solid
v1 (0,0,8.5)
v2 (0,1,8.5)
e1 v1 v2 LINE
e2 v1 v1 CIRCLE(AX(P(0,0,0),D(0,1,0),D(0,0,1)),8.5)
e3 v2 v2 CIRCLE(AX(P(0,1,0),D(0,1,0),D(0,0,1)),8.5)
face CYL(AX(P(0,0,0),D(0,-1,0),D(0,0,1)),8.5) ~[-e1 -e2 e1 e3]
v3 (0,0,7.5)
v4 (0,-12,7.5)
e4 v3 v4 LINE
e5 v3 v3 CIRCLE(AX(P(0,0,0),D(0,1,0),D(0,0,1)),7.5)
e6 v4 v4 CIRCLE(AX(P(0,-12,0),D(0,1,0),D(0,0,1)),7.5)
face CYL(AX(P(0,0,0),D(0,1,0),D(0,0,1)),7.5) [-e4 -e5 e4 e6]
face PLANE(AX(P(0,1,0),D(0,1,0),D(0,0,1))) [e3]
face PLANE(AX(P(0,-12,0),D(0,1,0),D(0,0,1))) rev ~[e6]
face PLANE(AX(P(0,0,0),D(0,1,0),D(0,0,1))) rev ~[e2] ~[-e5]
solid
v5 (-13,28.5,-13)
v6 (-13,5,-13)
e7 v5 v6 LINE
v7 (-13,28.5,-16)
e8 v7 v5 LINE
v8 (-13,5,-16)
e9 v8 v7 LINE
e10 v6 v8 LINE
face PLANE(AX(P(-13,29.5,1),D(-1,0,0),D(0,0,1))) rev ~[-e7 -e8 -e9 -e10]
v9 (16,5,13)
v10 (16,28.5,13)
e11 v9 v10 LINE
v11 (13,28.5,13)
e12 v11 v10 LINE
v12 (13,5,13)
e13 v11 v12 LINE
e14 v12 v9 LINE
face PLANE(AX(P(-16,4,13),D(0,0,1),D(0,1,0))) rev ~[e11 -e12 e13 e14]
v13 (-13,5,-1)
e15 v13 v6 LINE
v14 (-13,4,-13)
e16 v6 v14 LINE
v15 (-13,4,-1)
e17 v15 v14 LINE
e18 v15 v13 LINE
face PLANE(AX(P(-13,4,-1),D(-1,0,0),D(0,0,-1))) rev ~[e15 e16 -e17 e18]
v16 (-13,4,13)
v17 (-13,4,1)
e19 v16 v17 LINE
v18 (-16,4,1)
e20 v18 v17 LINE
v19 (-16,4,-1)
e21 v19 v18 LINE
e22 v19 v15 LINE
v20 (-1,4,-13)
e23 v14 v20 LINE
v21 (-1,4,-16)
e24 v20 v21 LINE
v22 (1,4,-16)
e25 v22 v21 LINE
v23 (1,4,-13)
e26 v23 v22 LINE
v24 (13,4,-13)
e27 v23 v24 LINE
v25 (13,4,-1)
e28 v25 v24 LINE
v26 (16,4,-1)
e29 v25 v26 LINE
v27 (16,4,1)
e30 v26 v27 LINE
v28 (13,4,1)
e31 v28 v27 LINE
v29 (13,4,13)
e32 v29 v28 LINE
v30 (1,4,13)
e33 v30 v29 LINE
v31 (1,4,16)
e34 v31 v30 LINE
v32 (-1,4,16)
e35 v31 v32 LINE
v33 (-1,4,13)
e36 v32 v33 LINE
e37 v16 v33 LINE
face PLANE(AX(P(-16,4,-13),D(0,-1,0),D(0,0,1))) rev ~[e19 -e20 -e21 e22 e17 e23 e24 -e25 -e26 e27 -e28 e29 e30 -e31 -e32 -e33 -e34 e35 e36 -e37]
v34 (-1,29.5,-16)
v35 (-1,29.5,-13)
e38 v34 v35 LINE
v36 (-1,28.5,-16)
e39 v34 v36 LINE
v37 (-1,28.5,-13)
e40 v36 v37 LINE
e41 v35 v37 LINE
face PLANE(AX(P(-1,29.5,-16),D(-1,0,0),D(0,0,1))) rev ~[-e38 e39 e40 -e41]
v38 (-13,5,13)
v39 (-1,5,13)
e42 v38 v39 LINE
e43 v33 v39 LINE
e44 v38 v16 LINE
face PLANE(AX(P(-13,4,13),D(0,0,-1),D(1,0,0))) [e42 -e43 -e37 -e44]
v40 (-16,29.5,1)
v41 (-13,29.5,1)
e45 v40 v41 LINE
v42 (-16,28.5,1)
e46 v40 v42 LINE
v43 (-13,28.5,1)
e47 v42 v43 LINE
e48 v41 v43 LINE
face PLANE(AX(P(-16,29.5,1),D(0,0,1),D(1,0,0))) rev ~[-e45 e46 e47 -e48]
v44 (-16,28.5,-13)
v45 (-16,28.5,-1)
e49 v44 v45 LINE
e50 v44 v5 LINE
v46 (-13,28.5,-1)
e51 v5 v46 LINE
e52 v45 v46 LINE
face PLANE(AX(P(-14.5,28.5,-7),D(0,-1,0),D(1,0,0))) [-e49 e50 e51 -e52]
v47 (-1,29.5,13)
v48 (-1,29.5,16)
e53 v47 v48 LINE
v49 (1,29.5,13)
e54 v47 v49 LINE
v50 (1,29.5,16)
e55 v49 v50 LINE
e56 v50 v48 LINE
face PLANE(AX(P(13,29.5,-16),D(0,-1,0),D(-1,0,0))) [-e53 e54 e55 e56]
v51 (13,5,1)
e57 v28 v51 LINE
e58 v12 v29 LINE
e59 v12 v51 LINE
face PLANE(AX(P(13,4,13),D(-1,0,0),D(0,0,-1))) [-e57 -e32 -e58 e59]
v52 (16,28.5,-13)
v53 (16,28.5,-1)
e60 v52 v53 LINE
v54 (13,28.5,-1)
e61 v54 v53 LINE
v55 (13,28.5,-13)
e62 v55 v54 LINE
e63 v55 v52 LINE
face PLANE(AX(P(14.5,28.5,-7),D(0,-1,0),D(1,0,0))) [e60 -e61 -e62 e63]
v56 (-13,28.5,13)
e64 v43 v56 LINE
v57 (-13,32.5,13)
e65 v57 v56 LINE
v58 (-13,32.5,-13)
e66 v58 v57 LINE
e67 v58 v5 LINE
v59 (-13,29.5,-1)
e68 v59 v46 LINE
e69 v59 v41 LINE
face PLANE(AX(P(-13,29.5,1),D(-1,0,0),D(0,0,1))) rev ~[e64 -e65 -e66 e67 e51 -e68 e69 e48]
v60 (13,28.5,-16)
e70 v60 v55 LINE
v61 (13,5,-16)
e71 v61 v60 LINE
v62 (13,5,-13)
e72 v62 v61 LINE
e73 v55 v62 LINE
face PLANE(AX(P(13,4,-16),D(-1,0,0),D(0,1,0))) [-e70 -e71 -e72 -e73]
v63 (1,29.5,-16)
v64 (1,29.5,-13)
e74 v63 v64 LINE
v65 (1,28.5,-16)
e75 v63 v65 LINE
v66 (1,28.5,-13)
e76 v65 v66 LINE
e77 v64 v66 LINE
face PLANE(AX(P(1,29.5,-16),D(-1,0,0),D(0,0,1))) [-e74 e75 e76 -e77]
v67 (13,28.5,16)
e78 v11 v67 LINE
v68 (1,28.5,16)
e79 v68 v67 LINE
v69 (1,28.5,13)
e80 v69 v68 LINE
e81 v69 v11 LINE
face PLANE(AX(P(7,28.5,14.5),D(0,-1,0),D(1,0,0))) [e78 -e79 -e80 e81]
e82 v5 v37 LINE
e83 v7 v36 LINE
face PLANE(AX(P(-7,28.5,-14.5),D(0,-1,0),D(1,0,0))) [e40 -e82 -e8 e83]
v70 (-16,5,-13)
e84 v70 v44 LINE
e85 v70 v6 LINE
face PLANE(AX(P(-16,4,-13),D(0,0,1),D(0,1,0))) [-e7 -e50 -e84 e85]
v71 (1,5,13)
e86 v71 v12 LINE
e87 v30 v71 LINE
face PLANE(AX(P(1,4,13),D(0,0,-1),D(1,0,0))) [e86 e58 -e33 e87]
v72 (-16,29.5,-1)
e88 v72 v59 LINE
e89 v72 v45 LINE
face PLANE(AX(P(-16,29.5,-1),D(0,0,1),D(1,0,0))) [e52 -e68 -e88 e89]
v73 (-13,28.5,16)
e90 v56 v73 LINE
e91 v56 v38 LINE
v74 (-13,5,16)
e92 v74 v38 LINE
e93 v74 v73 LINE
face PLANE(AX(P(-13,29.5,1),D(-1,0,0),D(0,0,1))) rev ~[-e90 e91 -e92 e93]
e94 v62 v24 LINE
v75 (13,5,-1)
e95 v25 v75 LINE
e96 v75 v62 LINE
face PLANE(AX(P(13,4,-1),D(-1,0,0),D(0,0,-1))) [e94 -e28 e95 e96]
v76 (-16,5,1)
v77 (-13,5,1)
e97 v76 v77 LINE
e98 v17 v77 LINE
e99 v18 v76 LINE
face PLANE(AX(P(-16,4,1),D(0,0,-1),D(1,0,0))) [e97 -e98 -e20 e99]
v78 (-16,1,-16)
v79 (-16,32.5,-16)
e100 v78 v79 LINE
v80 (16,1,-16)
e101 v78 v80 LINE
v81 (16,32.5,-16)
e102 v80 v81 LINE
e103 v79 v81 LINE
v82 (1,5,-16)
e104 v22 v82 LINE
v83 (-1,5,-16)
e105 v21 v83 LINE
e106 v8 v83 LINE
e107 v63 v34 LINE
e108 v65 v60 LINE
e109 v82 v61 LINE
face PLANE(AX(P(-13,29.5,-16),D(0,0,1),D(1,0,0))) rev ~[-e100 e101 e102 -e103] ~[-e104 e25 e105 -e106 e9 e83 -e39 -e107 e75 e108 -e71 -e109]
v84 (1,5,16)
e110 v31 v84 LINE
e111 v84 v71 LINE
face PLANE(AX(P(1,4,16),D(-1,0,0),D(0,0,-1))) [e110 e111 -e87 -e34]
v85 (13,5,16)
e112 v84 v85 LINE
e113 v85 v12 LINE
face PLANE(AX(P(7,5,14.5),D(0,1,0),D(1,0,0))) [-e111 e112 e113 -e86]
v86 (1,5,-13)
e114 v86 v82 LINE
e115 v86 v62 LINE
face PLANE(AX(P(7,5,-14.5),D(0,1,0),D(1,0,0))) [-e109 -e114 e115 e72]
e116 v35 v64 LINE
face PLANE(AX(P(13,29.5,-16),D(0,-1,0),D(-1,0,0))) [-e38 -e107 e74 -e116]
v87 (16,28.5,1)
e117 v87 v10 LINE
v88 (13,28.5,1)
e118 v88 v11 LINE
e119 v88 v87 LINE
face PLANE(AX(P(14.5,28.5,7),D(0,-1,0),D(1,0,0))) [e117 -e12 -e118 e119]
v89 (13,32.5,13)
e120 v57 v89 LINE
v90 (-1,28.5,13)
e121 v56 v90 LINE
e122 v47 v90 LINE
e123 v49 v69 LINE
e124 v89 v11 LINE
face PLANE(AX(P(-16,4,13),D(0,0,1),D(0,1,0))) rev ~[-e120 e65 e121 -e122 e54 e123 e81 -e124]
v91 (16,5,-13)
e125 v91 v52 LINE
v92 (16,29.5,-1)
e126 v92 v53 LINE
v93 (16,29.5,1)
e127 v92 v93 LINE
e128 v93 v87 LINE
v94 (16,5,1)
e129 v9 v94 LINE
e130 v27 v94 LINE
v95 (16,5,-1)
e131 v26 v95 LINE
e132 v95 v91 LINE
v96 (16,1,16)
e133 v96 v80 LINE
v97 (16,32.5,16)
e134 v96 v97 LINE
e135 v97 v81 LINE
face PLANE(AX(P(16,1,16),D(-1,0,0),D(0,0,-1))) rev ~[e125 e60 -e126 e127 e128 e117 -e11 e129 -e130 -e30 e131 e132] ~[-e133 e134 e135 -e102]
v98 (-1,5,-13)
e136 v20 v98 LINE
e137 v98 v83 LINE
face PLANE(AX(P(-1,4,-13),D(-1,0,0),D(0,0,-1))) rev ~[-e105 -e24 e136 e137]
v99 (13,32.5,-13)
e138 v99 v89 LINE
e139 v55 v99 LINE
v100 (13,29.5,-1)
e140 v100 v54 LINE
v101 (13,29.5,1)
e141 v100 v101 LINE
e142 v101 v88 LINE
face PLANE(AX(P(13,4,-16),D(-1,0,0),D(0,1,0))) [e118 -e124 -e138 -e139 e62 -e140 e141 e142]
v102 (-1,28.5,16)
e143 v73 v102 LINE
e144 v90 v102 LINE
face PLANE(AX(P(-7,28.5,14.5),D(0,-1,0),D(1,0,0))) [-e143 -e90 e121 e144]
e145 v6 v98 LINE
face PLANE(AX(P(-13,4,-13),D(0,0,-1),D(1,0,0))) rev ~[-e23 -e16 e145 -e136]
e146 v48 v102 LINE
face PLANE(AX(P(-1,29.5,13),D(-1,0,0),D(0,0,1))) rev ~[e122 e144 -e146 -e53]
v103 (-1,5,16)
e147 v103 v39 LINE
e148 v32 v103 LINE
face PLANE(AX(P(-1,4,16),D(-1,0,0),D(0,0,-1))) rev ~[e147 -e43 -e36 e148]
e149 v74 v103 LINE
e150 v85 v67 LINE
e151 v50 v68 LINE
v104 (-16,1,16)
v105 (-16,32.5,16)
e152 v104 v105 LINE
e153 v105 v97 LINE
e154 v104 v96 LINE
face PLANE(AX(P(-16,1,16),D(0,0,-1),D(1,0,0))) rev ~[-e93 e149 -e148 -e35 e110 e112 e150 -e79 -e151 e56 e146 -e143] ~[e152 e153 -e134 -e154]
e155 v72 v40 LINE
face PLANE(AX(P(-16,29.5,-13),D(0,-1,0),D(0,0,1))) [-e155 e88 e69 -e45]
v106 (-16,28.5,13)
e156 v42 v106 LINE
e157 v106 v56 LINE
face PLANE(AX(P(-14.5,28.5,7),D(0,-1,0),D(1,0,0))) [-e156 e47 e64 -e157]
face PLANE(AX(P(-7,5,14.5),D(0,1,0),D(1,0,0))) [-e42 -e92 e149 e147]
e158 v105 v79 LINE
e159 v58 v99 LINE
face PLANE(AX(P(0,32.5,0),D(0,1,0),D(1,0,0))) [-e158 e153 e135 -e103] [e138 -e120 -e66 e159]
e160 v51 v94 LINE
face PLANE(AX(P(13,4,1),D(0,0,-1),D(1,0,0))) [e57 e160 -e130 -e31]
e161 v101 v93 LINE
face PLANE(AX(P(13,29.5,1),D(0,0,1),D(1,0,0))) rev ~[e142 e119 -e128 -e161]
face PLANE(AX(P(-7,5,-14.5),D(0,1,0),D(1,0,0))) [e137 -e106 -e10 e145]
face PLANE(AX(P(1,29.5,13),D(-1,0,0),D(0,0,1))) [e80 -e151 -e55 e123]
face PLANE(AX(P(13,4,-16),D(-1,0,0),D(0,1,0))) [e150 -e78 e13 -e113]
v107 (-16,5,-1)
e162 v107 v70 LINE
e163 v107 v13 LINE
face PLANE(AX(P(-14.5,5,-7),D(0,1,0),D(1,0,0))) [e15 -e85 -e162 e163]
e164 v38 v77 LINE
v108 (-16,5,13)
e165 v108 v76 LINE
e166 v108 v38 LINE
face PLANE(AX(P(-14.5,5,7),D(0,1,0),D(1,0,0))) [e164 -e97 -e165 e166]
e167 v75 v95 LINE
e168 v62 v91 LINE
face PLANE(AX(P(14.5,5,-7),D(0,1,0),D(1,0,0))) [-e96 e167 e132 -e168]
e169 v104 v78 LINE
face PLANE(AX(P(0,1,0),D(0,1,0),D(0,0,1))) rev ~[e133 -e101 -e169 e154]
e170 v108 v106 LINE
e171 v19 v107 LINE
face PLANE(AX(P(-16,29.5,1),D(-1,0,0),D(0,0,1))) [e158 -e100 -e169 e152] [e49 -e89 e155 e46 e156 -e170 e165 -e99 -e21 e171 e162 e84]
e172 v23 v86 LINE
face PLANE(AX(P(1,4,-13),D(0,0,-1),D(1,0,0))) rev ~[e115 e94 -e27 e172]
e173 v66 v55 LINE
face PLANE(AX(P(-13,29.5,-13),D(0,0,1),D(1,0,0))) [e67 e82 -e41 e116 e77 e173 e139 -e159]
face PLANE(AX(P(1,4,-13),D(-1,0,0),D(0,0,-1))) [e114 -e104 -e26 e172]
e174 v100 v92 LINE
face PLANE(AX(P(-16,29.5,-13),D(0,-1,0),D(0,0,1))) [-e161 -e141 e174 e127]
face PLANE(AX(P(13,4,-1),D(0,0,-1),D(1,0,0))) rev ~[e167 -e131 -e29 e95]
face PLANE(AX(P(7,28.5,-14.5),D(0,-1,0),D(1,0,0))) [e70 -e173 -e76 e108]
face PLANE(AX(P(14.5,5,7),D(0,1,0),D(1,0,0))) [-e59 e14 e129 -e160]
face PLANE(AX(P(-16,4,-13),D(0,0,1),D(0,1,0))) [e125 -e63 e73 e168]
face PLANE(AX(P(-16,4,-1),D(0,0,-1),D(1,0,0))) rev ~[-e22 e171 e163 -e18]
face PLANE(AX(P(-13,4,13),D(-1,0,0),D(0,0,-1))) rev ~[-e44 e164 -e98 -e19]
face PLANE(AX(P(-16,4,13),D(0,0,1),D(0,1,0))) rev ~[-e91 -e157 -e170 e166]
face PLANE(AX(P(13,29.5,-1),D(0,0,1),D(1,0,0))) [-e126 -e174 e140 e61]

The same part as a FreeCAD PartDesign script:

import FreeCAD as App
import Part
import Sketcher
Q = App.Units.Quantity

doc = App.newDocument("Part")
params = doc.addObject("Spreadsheet::Sheet", "Params")
for row, (alias, value) in enumerate([
    ("sketch1_diameter", "15 mm"),
    ("pad1_length", "12 mm"),
    ("sketch2_diameter", "17 mm"),
    ("pad2_length", "1 mm"),
    ("sketch3_width", "32 mm"),
    ("pad3_length", "31.5 mm"),
    ("sketch4_width", "26 mm"),
    ("sketch5_height", "26 mm"),
    ("sketch5_width", "25.5 mm"),
    ("sketch6_width", "26 mm"),
    ("sketch6_height", "25.5 mm"),
    ("sketch7_width", "12 mm"),
    ("sketch7_width2", "3 mm"),
    ("pad4_length", "1 mm"),
    ("sketch8_width", "3 mm"),
    ("sketch8_height", "12 mm"),
    ("pad5_length", "1 mm"),
    ("sketch9_width", "12 mm"),
    ("sketch9_height", "3 mm"),
    ("pad6_length", "1 mm"),
], start=1):
    params.set(f"A{row}", alias)
    params.set(f"B{row}", "=" + value)
    params.setAlias(f"B{row}", alias)

body = doc.addObject("PartDesign::Body", "Body")

sketch1 = doc.addObject("Sketcher::SketchObject", "Sketch")
body.addObject(sketch1)
sketch1.AttachmentSupport = (doc.XZ_Plane, [""])
sketch1.MapMode = "FlatFace"
sketch1.addGeometry(Part.Circle(App.Vector(0, 0, 0), App.Vector(0, 0, 1), 8), False)
sketch1.addConstraint(Sketcher.Constraint("Coincident", 0, 3, -1, 1))
sketch1.addConstraint(Sketcher.Constraint("Diameter", 0, Q("15 mm")))
sketch1.setExpression("Constraints[1]", "Params.sketch1_diameter")
pad1 = doc.addObject("PartDesign::Pad", "Pad")
body.addObject(pad1)
pad1.Profile = sketch1
pad1.setExpression("Length", "Params.pad1_length")

sketch2 = doc.addObject("Sketcher::SketchObject", "Sketch001")
body.addObject(sketch2)
sketch2.AttachmentSupport = (doc.XZ_Plane, [""])
sketch2.MapMode = "FlatFace"
sketch2.addGeometry(Part.Circle(App.Vector(0, 0, 0), App.Vector(0, 0, 1), 8), False)
sketch2.addConstraint(Sketcher.Constraint("Coincident", 0, 3, -1, 1))
sketch2.addConstraint(Sketcher.Constraint("Diameter", 0, Q("17 mm")))
sketch2.setExpression("Constraints[1]", "Params.sketch2_diameter")
pad2 = doc.addObject("PartDesign::Pad", "Pad001")
body.addObject(pad2)
pad2.Profile = sketch2
pad2.setExpression("Length", "Params.pad2_length")
pad2.Reversed = True
body2 = doc.addObject("PartDesign::Body", "Body001")

sketch3 = doc.addObject("Sketcher::SketchObject", "Sketch002")
body2.addObject(sketch3)
sketch3.AttachmentSupport = (doc.getObject("XZ_Plane001"), [""])
sketch3.MapMode = "FlatFace"
sketch3.AttachmentOffset = App.Placement(App.Vector(0, 0, -1), App.Rotation())
sketch3.addGeometry(Part.LineSegment(App.Vector(-16, -16, 0), App.Vector(-16, 16, 0)), False)
sketch3.addGeometry(Part.LineSegment(App.Vector(-16, 16, 0), App.Vector(16, 16, 0)), False)
sketch3.addGeometry(Part.LineSegment(App.Vector(16, 16, 0), App.Vector(16, -16, 0)), False)
sketch3.addGeometry(Part.LineSegment(App.Vector(16, -16, 0), App.Vector(-16, -16, 0)), False)
sketch3.addConstraint(Sketcher.Constraint("Coincident", 0, 2, 1, 1))
sketch3.addConstraint(Sketcher.Constraint("Coincident", 1, 2, 2, 1))
sketch3.addConstraint(Sketcher.Constraint("Coincident", 2, 2, 3, 1))
sketch3.addConstraint(Sketcher.Constraint("Coincident", 3, 2, 0, 1))
sketch3.addConstraint(Sketcher.Constraint("Vertical", 0))
sketch3.addConstraint(Sketcher.Constraint("Horizontal", 1))
sketch3.addConstraint(Sketcher.Constraint("Vertical", 2))
sketch3.addConstraint(Sketcher.Constraint("Horizontal", 3))
sketch3.addConstraint(Sketcher.Constraint("Symmetric", 0, 2, 2, 2, -1, 1))
sketch3.addConstraint(Sketcher.Constraint("Equal", 3, 0))
sketch3.addConstraint(Sketcher.Constraint("DistanceX", 1, 1, 1, 2, Q("32 mm")))
sketch3.setExpression("Constraints[10]", "Params.sketch3_width")
pad3 = doc.addObject("PartDesign::Pad", "Pad002")
body2.addObject(pad3)
pad3.Profile = sketch3
pad3.setExpression("Length", "Params.pad3_length")
pad3.Reversed = True

sketch4 = doc.addObject("Sketcher::SketchObject", "Sketch003")
body2.addObject(sketch4)
sketch4.AttachmentSupport = (doc.getObject("XZ_Plane001"), [""])
sketch4.MapMode = "FlatFace"
sketch4.AttachmentOffset = App.Placement(App.Vector(0, 0, -4), App.Rotation())
sketch4.addGeometry(Part.LineSegment(App.Vector(13, -13, 0), App.Vector(13, 13, 0)), False)
sketch4.addGeometry(Part.LineSegment(App.Vector(13, 13, 0), App.Vector(-13, 13, 0)), False)
sketch4.addGeometry(Part.LineSegment(App.Vector(-13, 13, 0), App.Vector(-13, -13, 0)), False)
sketch4.addGeometry(Part.LineSegment(App.Vector(-13, -13, 0), App.Vector(13, -13, 0)), False)
sketch4.addConstraint(Sketcher.Constraint("Coincident", 0, 2, 1, 1))
sketch4.addConstraint(Sketcher.Constraint("Coincident", 1, 2, 2, 1))
sketch4.addConstraint(Sketcher.Constraint("Coincident", 2, 2, 3, 1))
sketch4.addConstraint(Sketcher.Constraint("Coincident", 3, 2, 0, 1))
sketch4.addConstraint(Sketcher.Constraint("Vertical", 0))
sketch4.addConstraint(Sketcher.Constraint("Horizontal", 1))
sketch4.addConstraint(Sketcher.Constraint("Vertical", 2))
sketch4.addConstraint(Sketcher.Constraint("Horizontal", 3))
sketch4.addConstraint(Sketcher.Constraint("Symmetric", 0, 2, 2, 2, -1, 1))
sketch4.addConstraint(Sketcher.Constraint("Equal", 3, 0))
sketch4.addConstraint(Sketcher.Constraint("DistanceX", 1, 2, 1, 1, Q("26 mm")))
sketch4.setExpression("Constraints[10]", "Params.sketch4_width")
pocket1 = doc.addObject("PartDesign::Pocket", "Pocket")
body2.addObject(pocket1)
pocket1.Profile = sketch4
pocket1.Type = "ThroughAll"

sketch5 = doc.addObject("Sketcher::SketchObject", "Sketch004")
body2.addObject(sketch5)
sketch5.AttachmentSupport = (doc.getObject("YZ_Plane001"), [""])
sketch5.MapMode = "FlatFace"
sketch5.AttachmentOffset = App.Placement(App.Vector(0, 0, -16), App.Rotation())
sketch5.addGeometry(Part.LineSegment(App.Vector(30, -13, 0), App.Vector(4, -13, 0)), False)
sketch5.addGeometry(Part.LineSegment(App.Vector(4, -13, 0), App.Vector(4, 13, 0)), False)
sketch5.addGeometry(Part.LineSegment(App.Vector(4, 13, 0), App.Vector(30, 13, 0)), False)
sketch5.addGeometry(Part.LineSegment(App.Vector(30, 13, 0), App.Vector(30, -13, 0)), False)
sketch5.addConstraint(Sketcher.Constraint("Coincident", 0, 2, 1, 1))
sketch5.addConstraint(Sketcher.Constraint("Coincident", 1, 2, 2, 1))
sketch5.addConstraint(Sketcher.Constraint("Coincident", 2, 2, 3, 1))
sketch5.addConstraint(Sketcher.Constraint("Coincident", 3, 2, 0, 1))
sketch5.addConstraint(Sketcher.Constraint("Horizontal", 0))
sketch5.addConstraint(Sketcher.Constraint("Vertical", 1))
sketch5.addConstraint(Sketcher.Constraint("Horizontal", 2))
sketch5.addConstraint(Sketcher.Constraint("Vertical", 3))
sketch5.addConstraint(Sketcher.Constraint("DistanceY", 1, 1, 1, 2, Q("26 mm")))
sketch5.addConstraint(Sketcher.Constraint("DistanceX", 0, 2, 0, 1, Q("25.5 mm")))
sketch5.addConstraint(Sketcher.Constraint("DistanceX", -1, 1, 0, 2, Q("4 mm")))
sketch5.addConstraint(Sketcher.Constraint("DistanceY", 0, 2, -1, 1, Q("13 mm")))
sketch5.setExpression("Constraints[8]", "Params.sketch5_height")
sketch5.setExpression("Constraints[9]", "Params.sketch5_width")
pocket2 = doc.addObject("PartDesign::Pocket", "Pocket001")
body2.addObject(pocket2)
pocket2.Profile = sketch5
pocket2.Type = "ThroughAll"
pocket2.Reversed = True

sketch6 = doc.addObject("Sketcher::SketchObject", "Sketch005")
body2.addObject(sketch6)
sketch6.AttachmentSupport = (doc.getObject("XY_Plane001"), [""])
sketch6.MapMode = "FlatFace"
sketch6.AttachmentOffset = App.Placement(App.Vector(0, 0, -16), App.Rotation())
sketch6.addGeometry(Part.LineSegment(App.Vector(13, 30, 0), App.Vector(13, 4, 0)), False)
sketch6.addGeometry(Part.LineSegment(App.Vector(13, 4, 0), App.Vector(-13, 4, 0)), False)
sketch6.addGeometry(Part.LineSegment(App.Vector(-13, 4, 0), App.Vector(-13, 30, 0)), False)
sketch6.addGeometry(Part.LineSegment(App.Vector(-13, 30, 0), App.Vector(13, 30, 0)), False)
sketch6.addConstraint(Sketcher.Constraint("Coincident", 0, 2, 1, 1))
sketch6.addConstraint(Sketcher.Constraint("Coincident", 1, 2, 2, 1))
sketch6.addConstraint(Sketcher.Constraint("Coincident", 2, 2, 3, 1))
sketch6.addConstraint(Sketcher.Constraint("Coincident", 3, 2, 0, 1))
sketch6.addConstraint(Sketcher.Constraint("Vertical", 0))
sketch6.addConstraint(Sketcher.Constraint("Horizontal", 1))
sketch6.addConstraint(Sketcher.Constraint("Vertical", 2))
sketch6.addConstraint(Sketcher.Constraint("Horizontal", 3))
sketch6.addConstraint(Sketcher.Constraint("DistanceX", 1, 2, 1, 1, Q("26 mm")))
sketch6.addConstraint(Sketcher.Constraint("DistanceY", 0, 2, 0, 1, Q("25.5 mm")))
sketch6.addConstraint(Sketcher.Constraint("DistanceX", -1, 1, 0, 2, Q("13 mm")))
sketch6.addConstraint(Sketcher.Constraint("DistanceY", -1, 1, 0, 2, Q("4 mm")))
sketch6.setExpression("Constraints[8]", "Params.sketch6_width")
sketch6.setExpression("Constraints[9]", "Params.sketch6_height")
pocket3 = doc.addObject("PartDesign::Pocket", "Pocket002")
body2.addObject(pocket3)
pocket3.Profile = sketch6
pocket3.Type = "ThroughAll"
pocket3.Reversed = True

sketch7 = doc.addObject("Sketcher::SketchObject", "Sketch006")
body2.addObject(sketch7)
sketch7.AttachmentSupport = (doc.getObject("XZ_Plane001"), [""])
sketch7.MapMode = "FlatFace"
sketch7.AttachmentOffset = App.Placement(App.Vector(0, 0, -4), App.Rotation())
sketch7.addGeometry(Part.LineSegment(App.Vector(-13, -16, 0), App.Vector(-13, -13, 0)), False)
sketch7.addGeometry(Part.LineSegment(App.Vector(-13, -13, 0), App.Vector(-1, -13, 0)), False)
sketch7.addGeometry(Part.LineSegment(App.Vector(-1, -13, 0), App.Vector(-1, -16, 0)), False)
sketch7.addGeometry(Part.LineSegment(App.Vector(-1, -16, 0), App.Vector(-13, -16, 0)), False)
sketch7.addGeometry(Part.LineSegment(App.Vector(1, -16, 0), App.Vector(1, -13, 0)), False)
sketch7.addGeometry(Part.LineSegment(App.Vector(1, -13, 0), App.Vector(13, -13, 0)), False)
sketch7.addGeometry(Part.LineSegment(App.Vector(13, -13, 0), App.Vector(13, -16, 0)), False)
sketch7.addGeometry(Part.LineSegment(App.Vector(13, -16, 0), App.Vector(1, -16, 0)), False)
sketch7.addGeometry(Part.LineSegment(App.Vector(13, -13, 0), App.Vector(13, -1, 0)), False)
sketch7.addGeometry(Part.LineSegment(App.Vector(13, -1, 0), App.Vector(16, -1, 0)), False)
sketch7.addGeometry(Part.LineSegment(App.Vector(16, -1, 0), App.Vector(16, -13, 0)), False)
sketch7.addGeometry(Part.LineSegment(App.Vector(16, -13, 0), App.Vector(13, -13, 0)), False)
sketch7.addGeometry(Part.LineSegment(App.Vector(13, 1, 0), App.Vector(13, 13, 0)), False)
sketch7.addGeometry(Part.LineSegment(App.Vector(13, 13, 0), App.Vector(16, 13, 0)), False)
sketch7.addGeometry(Part.LineSegment(App.Vector(16, 13, 0), App.Vector(16, 1, 0)), False)
sketch7.addGeometry(Part.LineSegment(App.Vector(16, 1, 0), App.Vector(13, 1, 0)), False)
sketch7.addGeometry(Part.LineSegment(App.Vector(1, 13, 0), App.Vector(1, 16, 0)), False)
sketch7.addGeometry(Part.LineSegment(App.Vector(1, 16, 0), App.Vector(13, 16, 0)), False)
sketch7.addGeometry(Part.LineSegment(App.Vector(13, 16, 0), App.Vector(13, 13, 0)), False)
sketch7.addGeometry(Part.LineSegment(App.Vector(13, 13, 0), App.Vector(1, 13, 0)), False)
sketch7.addGeometry(Part.LineSegment(App.Vector(-13, 13, 0), App.Vector(-13, 16, 0)), False)
sketch7.addGeometry(Part.LineSegment(App.Vector(-13, 16, 0), App.Vector(-1, 16, 0)), False)
sketch7.addGeometry(Part.LineSegment(App.Vector(-1, 16, 0), App.Vector(-1, 13, 0)), False)
sketch7.addGeometry(Part.LineSegment(App.Vector(-1, 13, 0), App.Vector(-13, 13, 0)), False)
sketch7.addGeometry(Part.LineSegment(App.Vector(-16, 1, 0), App.Vector(-16, 13, 0)), False)
sketch7.addGeometry(Part.LineSegment(App.Vector(-16, 13, 0), App.Vector(-13, 13, 0)), False)
sketch7.addGeometry(Part.LineSegment(App.Vector(-13, 13, 0), App.Vector(-13, 1, 0)), False)
sketch7.addGeometry(Part.LineSegment(App.Vector(-13, 1, 0), App.Vector(-16, 1, 0)), False)
sketch7.addGeometry(Part.LineSegment(App.Vector(-16, -13, 0), App.Vector(-16, -1, 0)), False)
sketch7.addGeometry(Part.LineSegment(App.Vector(-16, -1, 0), App.Vector(-13, -1, 0)), False)
sketch7.addGeometry(Part.LineSegment(App.Vector(-13, -1, 0), App.Vector(-13, -13, 0)), False)
sketch7.addGeometry(Part.LineSegment(App.Vector(-13, -13, 0), App.Vector(-16, -13, 0)), False)
sketch7.addConstraint(Sketcher.Constraint("Coincident", 0, 2, 1, 1))
sketch7.addConstraint(Sketcher.Constraint("Coincident", 1, 2, 2, 1))
sketch7.addConstraint(Sketcher.Constraint("Coincident", 2, 2, 3, 1))
sketch7.addConstraint(Sketcher.Constraint("Coincident", 3, 2, 0, 1))
sketch7.addConstraint(Sketcher.Constraint("Coincident", 4, 2, 5, 1))
sketch7.addConstraint(Sketcher.Constraint("Coincident", 5, 2, 6, 1))
sketch7.addConstraint(Sketcher.Constraint("Coincident", 6, 2, 7, 1))
sketch7.addConstraint(Sketcher.Constraint("Coincident", 7, 2, 4, 1))
sketch7.addConstraint(Sketcher.Constraint("Coincident", 8, 2, 9, 1))
sketch7.addConstraint(Sketcher.Constraint("Coincident", 9, 2, 10, 1))
sketch7.addConstraint(Sketcher.Constraint("Coincident", 10, 2, 11, 1))
sketch7.addConstraint(Sketcher.Constraint("Coincident", 11, 2, 8, 1))
sketch7.addConstraint(Sketcher.Constraint("Coincident", 12, 2, 13, 1))
sketch7.addConstraint(Sketcher.Constraint("Coincident", 13, 2, 14, 1))
sketch7.addConstraint(Sketcher.Constraint("Coincident", 14, 2, 15, 1))
sketch7.addConstraint(Sketcher.Constraint("Coincident", 15, 2, 12, 1))
sketch7.addConstraint(Sketcher.Constraint("Coincident", 16, 2, 17, 1))
sketch7.addConstraint(Sketcher.Constraint("Coincident", 17, 2, 18, 1))
sketch7.addConstraint(Sketcher.Constraint("Coincident", 18, 2, 19, 1))
sketch7.addConstraint(Sketcher.Constraint("Coincident", 19, 2, 16, 1))
sketch7.addConstraint(Sketcher.Constraint("Coincident", 20, 2, 21, 1))
sketch7.addConstraint(Sketcher.Constraint("Coincident", 21, 2, 22, 1))
sketch7.addConstraint(Sketcher.Constraint("Coincident", 22, 2, 23, 1))
sketch7.addConstraint(Sketcher.Constraint("Coincident", 23, 2, 20, 1))
sketch7.addConstraint(Sketcher.Constraint("Coincident", 24, 2, 25, 1))
sketch7.addConstraint(Sketcher.Constraint("Coincident", 25, 2, 26, 1))
sketch7.addConstraint(Sketcher.Constraint("Coincident", 26, 2, 27, 1))
sketch7.addConstraint(Sketcher.Constraint("Coincident", 27, 2, 24, 1))
sketch7.addConstraint(Sketcher.Constraint("Coincident", 28, 2, 29, 1))
sketch7.addConstraint(Sketcher.Constraint("Coincident", 29, 2, 30, 1))
sketch7.addConstraint(Sketcher.Constraint("Coincident", 30, 2, 31, 1))
sketch7.addConstraint(Sketcher.Constraint("Coincident", 31, 2, 28, 1))
sketch7.addConstraint(Sketcher.Constraint("Vertical", 0))
sketch7.addConstraint(Sketcher.Constraint("Horizontal", 1))
sketch7.addConstraint(Sketcher.Constraint("Vertical", 2))
sketch7.addConstraint(Sketcher.Constraint("Horizontal", 3))
sketch7.addConstraint(Sketcher.Constraint("Vertical", 4))
sketch7.addConstraint(Sketcher.Constraint("Horizontal", 5))
sketch7.addConstraint(Sketcher.Constraint("Vertical", 6))
sketch7.addConstraint(Sketcher.Constraint("Horizontal", 7))
sketch7.addConstraint(Sketcher.Constraint("Vertical", 8))
sketch7.addConstraint(Sketcher.Constraint("Horizontal", 9))
sketch7.addConstraint(Sketcher.Constraint("Vertical", 10))
sketch7.addConstraint(Sketcher.Constraint("Horizontal", 11))
sketch7.addConstraint(Sketcher.Constraint("Vertical", 12))
sketch7.addConstraint(Sketcher.Constraint("Horizontal", 13))
sketch7.addConstraint(Sketcher.Constraint("Vertical", 14))
sketch7.addConstraint(Sketcher.Constraint("Horizontal", 15))
sketch7.addConstraint(Sketcher.Constraint("Vertical", 16))
sketch7.addConstraint(Sketcher.Constraint("Horizontal", 17))
sketch7.addConstraint(Sketcher.Constraint("Vertical", 18))
sketch7.addConstraint(Sketcher.Constraint("Horizontal", 19))
sketch7.addConstraint(Sketcher.Constraint("Vertical", 20))
sketch7.addConstraint(Sketcher.Constraint("Horizontal", 21))
sketch7.addConstraint(Sketcher.Constraint("Vertical", 22))
sketch7.addConstraint(Sketcher.Constraint("Horizontal", 23))
sketch7.addConstraint(Sketcher.Constraint("Vertical", 24))
sketch7.addConstraint(Sketcher.Constraint("Horizontal", 25))
sketch7.addConstraint(Sketcher.Constraint("Vertical", 26))
sketch7.addConstraint(Sketcher.Constraint("Horizontal", 27))
sketch7.addConstraint(Sketcher.Constraint("Vertical", 28))
sketch7.addConstraint(Sketcher.Constraint("Horizontal", 29))
sketch7.addConstraint(Sketcher.Constraint("Vertical", 30))
sketch7.addConstraint(Sketcher.Constraint("Horizontal", 31))
sketch7.addConstraint(Sketcher.Constraint("Coincident", 11, 2, 5, 2))
sketch7.addConstraint(Sketcher.Constraint("Coincident", 18, 2, 12, 2))
sketch7.addConstraint(Sketcher.Constraint("Coincident", 25, 2, 23, 2))
sketch7.addConstraint(Sketcher.Constraint("Coincident", 30, 2, 0, 2))
sketch7.addConstraint(Sketcher.Constraint("Symmetric", 0, 2, 12, 2, -1, 1))
sketch7.addConstraint(Sketcher.Constraint("Symmetric", 2, 2, 16, 2, -1, 1))
sketch7.addConstraint(Sketcher.Constraint("Symmetric", 6, 2, 20, 2, -1, 1))
sketch7.addConstraint(Sketcher.Constraint("Symmetric", 4, 2, 22, 2, -1, 1))
sketch7.addConstraint(Sketcher.Constraint("Symmetric", 9, 2, 27, 2, -1, 1))
sketch7.addConstraint(Sketcher.Constraint("Symmetric", 14, 2, 28, 2, -1, 1))
sketch7.addConstraint(Sketcher.Constraint("Symmetric", 1, 2, 4, 2, -2))
sketch7.addConstraint(Sketcher.Constraint("Symmetric", 3, 2, 6, 2, -2))
sketch7.addConstraint(Sketcher.Constraint("Symmetric", 14, 2, 27, 2, -2))
sketch7.addConstraint(Sketcher.Constraint("Equal", 31, 0))
sketch7.addConstraint(Sketcher.Constraint("Equal", 23, 8))
sketch7.addConstraint(Sketcher.Constraint("DistanceX", 1, 1, 1, 2, Q("12 mm")))
sketch7.addConstraint(Sketcher.Constraint("DistanceX", 9, 1, 9, 2, Q("3 mm")))
sketch7.addConstraint(Sketcher.Constraint("DistanceX", 0, 2, -1, 1, Q("13 mm")))
sketch7.addConstraint(Sketcher.Constraint("DistanceY", 0, 2, -1, 1, Q("13 mm")))
sketch7.setExpression("Constraints[79]", "Params.sketch7_width")
sketch7.setExpression("Constraints[80]", "Params.sketch7_width2")
pad4 = doc.addObject("PartDesign::Pad", "Pad003")
body2.addObject(pad4)
pad4.Profile = sketch7
pad4.setExpression("Length", "Params.pad4_length")
pad4.Reversed = True

sketch8 = doc.addObject("Sketcher::SketchObject", "Sketch007")
body2.addObject(sketch8)
sketch8.AttachmentSupport = (doc.getObject("XZ_Plane001"), [""])
sketch8.MapMode = "FlatFace"
sketch8.AttachmentOffset = App.Placement(App.Vector(0, 0, -29.5), App.Rotation())
sketch8.addGeometry(Part.LineSegment(App.Vector(-16, 13, 0), App.Vector(-16, 1, 0)), False)
sketch8.addGeometry(Part.LineSegment(App.Vector(-16, 1, 0), App.Vector(-13, 1, 0)), False)
sketch8.addGeometry(Part.LineSegment(App.Vector(-13, 1, 0), App.Vector(-13, 13, 0)), False)
sketch8.addGeometry(Part.LineSegment(App.Vector(-13, 13, 0), App.Vector(-16, 13, 0)), False)
sketch8.addGeometry(Part.LineSegment(App.Vector(-16, -1, 0), App.Vector(-16, -13, 0)), False)
sketch8.addGeometry(Part.LineSegment(App.Vector(-16, -13, 0), App.Vector(-13, -13, 0)), False)
sketch8.addGeometry(Part.LineSegment(App.Vector(-13, -13, 0), App.Vector(-13, -1, 0)), False)
sketch8.addGeometry(Part.LineSegment(App.Vector(-13, -1, 0), App.Vector(-16, -1, 0)), False)
sketch8.addGeometry(Part.LineSegment(App.Vector(13, 13, 0), App.Vector(13, 1, 0)), False)
sketch8.addGeometry(Part.LineSegment(App.Vector(13, 1, 0), App.Vector(16, 1, 0)), False)
sketch8.addGeometry(Part.LineSegment(App.Vector(16, 1, 0), App.Vector(16, 13, 0)), False)
sketch8.addGeometry(Part.LineSegment(App.Vector(16, 13, 0), App.Vector(13, 13, 0)), False)
sketch8.addGeometry(Part.LineSegment(App.Vector(13, -1, 0), App.Vector(13, -13, 0)), False)
sketch8.addGeometry(Part.LineSegment(App.Vector(13, -13, 0), App.Vector(16, -13, 0)), False)
sketch8.addGeometry(Part.LineSegment(App.Vector(16, -13, 0), App.Vector(16, -1, 0)), False)
sketch8.addGeometry(Part.LineSegment(App.Vector(16, -1, 0), App.Vector(13, -1, 0)), False)
sketch8.addConstraint(Sketcher.Constraint("Coincident", 0, 2, 1, 1))
sketch8.addConstraint(Sketcher.Constraint("Coincident", 1, 2, 2, 1))
sketch8.addConstraint(Sketcher.Constraint("Coincident", 2, 2, 3, 1))
sketch8.addConstraint(Sketcher.Constraint("Coincident", 3, 2, 0, 1))
sketch8.addConstraint(Sketcher.Constraint("Coincident", 4, 2, 5, 1))
sketch8.addConstraint(Sketcher.Constraint("Coincident", 5, 2, 6, 1))
sketch8.addConstraint(Sketcher.Constraint("Coincident", 6, 2, 7, 1))
sketch8.addConstraint(Sketcher.Constraint("Coincident", 7, 2, 4, 1))
sketch8.addConstraint(Sketcher.Constraint("Coincident", 8, 2, 9, 1))
sketch8.addConstraint(Sketcher.Constraint("Coincident", 9, 2, 10, 1))
sketch8.addConstraint(Sketcher.Constraint("Coincident", 10, 2, 11, 1))
sketch8.addConstraint(Sketcher.Constraint("Coincident", 11, 2, 8, 1))
sketch8.addConstraint(Sketcher.Constraint("Coincident", 12, 2, 13, 1))
sketch8.addConstraint(Sketcher.Constraint("Coincident", 13, 2, 14, 1))
sketch8.addConstraint(Sketcher.Constraint("Coincident", 14, 2, 15, 1))
sketch8.addConstraint(Sketcher.Constraint("Coincident", 15, 2, 12, 1))
sketch8.addConstraint(Sketcher.Constraint("Vertical", 0))
sketch8.addConstraint(Sketcher.Constraint("Horizontal", 1))
sketch8.addConstraint(Sketcher.Constraint("Vertical", 2))
sketch8.addConstraint(Sketcher.Constraint("Horizontal", 3))
sketch8.addConstraint(Sketcher.Constraint("Vertical", 4))
sketch8.addConstraint(Sketcher.Constraint("Horizontal", 5))
sketch8.addConstraint(Sketcher.Constraint("Vertical", 6))
sketch8.addConstraint(Sketcher.Constraint("Horizontal", 7))
sketch8.addConstraint(Sketcher.Constraint("Vertical", 8))
sketch8.addConstraint(Sketcher.Constraint("Horizontal", 9))
sketch8.addConstraint(Sketcher.Constraint("Vertical", 10))
sketch8.addConstraint(Sketcher.Constraint("Horizontal", 11))
sketch8.addConstraint(Sketcher.Constraint("Vertical", 12))
sketch8.addConstraint(Sketcher.Constraint("Horizontal", 13))
sketch8.addConstraint(Sketcher.Constraint("Vertical", 14))
sketch8.addConstraint(Sketcher.Constraint("Horizontal", 15))
sketch8.addConstraint(Sketcher.Constraint("Symmetric", 6, 2, 8, 2, -1, 1))
sketch8.addConstraint(Sketcher.Constraint("Symmetric", 4, 2, 10, 2, -1, 1))
sketch8.addConstraint(Sketcher.Constraint("Symmetric", 2, 2, 12, 2, -1, 1))
sketch8.addConstraint(Sketcher.Constraint("Symmetric", 0, 2, 14, 2, -1, 1))
sketch8.addConstraint(Sketcher.Constraint("Symmetric", 1, 2, 8, 2, -2))
sketch8.addConstraint(Sketcher.Constraint("Symmetric", 3, 2, 10, 2, -2))
sketch8.addConstraint(Sketcher.Constraint("DistanceX", 1, 1, 1, 2, Q("3 mm")))
sketch8.addConstraint(Sketcher.Constraint("DistanceY", 0, 2, 0, 1, Q("12 mm")))
sketch8.addConstraint(Sketcher.Constraint("DistanceX", 0, 2, -1, 1, Q("16 mm")))
sketch8.addConstraint(Sketcher.Constraint("DistanceY", -1, 1, 0, 2, Q("1 mm")))
sketch8.setExpression("Constraints[38]", "Params.sketch8_width")
sketch8.setExpression("Constraints[39]", "Params.sketch8_height")
pad5 = doc.addObject("PartDesign::Pad", "Pad004")
body2.addObject(pad5)
pad5.Profile = sketch8
pad5.setExpression("Length", "Params.pad5_length")

sketch9 = doc.addObject("Sketcher::SketchObject", "Sketch008")
body2.addObject(sketch9)
sketch9.AttachmentSupport = (doc.getObject("XZ_Plane001"), [""])
sketch9.MapMode = "FlatFace"
sketch9.AttachmentOffset = App.Placement(App.Vector(0, 0, -29.5), App.Rotation())
sketch9.addGeometry(Part.LineSegment(App.Vector(-13, -13, 0), App.Vector(-13, -16, 0)), False)
sketch9.addGeometry(Part.LineSegment(App.Vector(-13, -16, 0), App.Vector(-1, -16, 0)), False)
sketch9.addGeometry(Part.LineSegment(App.Vector(-1, -16, 0), App.Vector(-1, -13, 0)), False)
sketch9.addGeometry(Part.LineSegment(App.Vector(-1, -13, 0), App.Vector(-13, -13, 0)), False)
sketch9.addGeometry(Part.LineSegment(App.Vector(1, -13, 0), App.Vector(1, -16, 0)), False)
sketch9.addGeometry(Part.LineSegment(App.Vector(1, -16, 0), App.Vector(13, -16, 0)), False)
sketch9.addGeometry(Part.LineSegment(App.Vector(13, -16, 0), App.Vector(13, -13, 0)), False)
sketch9.addGeometry(Part.LineSegment(App.Vector(13, -13, 0), App.Vector(1, -13, 0)), False)
sketch9.addGeometry(Part.LineSegment(App.Vector(-13, 16, 0), App.Vector(-13, 13, 0)), False)
sketch9.addGeometry(Part.LineSegment(App.Vector(-13, 13, 0), App.Vector(-1, 13, 0)), False)
sketch9.addGeometry(Part.LineSegment(App.Vector(-1, 13, 0), App.Vector(-1, 16, 0)), False)
sketch9.addGeometry(Part.LineSegment(App.Vector(-1, 16, 0), App.Vector(-13, 16, 0)), False)
sketch9.addGeometry(Part.LineSegment(App.Vector(1, 16, 0), App.Vector(1, 13, 0)), False)
sketch9.addGeometry(Part.LineSegment(App.Vector(1, 13, 0), App.Vector(13, 13, 0)), False)
sketch9.addGeometry(Part.LineSegment(App.Vector(13, 13, 0), App.Vector(13, 16, 0)), False)
sketch9.addGeometry(Part.LineSegment(App.Vector(13, 16, 0), App.Vector(1, 16, 0)), False)
sketch9.addConstraint(Sketcher.Constraint("Coincident", 0, 2, 1, 1))
sketch9.addConstraint(Sketcher.Constraint("Coincident", 1, 2, 2, 1))
sketch9.addConstraint(Sketcher.Constraint("Coincident", 2, 2, 3, 1))
sketch9.addConstraint(Sketcher.Constraint("Coincident", 3, 2, 0, 1))
sketch9.addConstraint(Sketcher.Constraint("Coincident", 4, 2, 5, 1))
sketch9.addConstraint(Sketcher.Constraint("Coincident", 5, 2, 6, 1))
sketch9.addConstraint(Sketcher.Constraint("Coincident", 6, 2, 7, 1))
sketch9.addConstraint(Sketcher.Constraint("Coincident", 7, 2, 4, 1))
sketch9.addConstraint(Sketcher.Constraint("Coincident", 8, 2, 9, 1))
sketch9.addConstraint(Sketcher.Constraint("Coincident", 9, 2, 10, 1))
sketch9.addConstraint(Sketcher.Constraint("Coincident", 10, 2, 11, 1))
sketch9.addConstraint(Sketcher.Constraint("Coincident", 11, 2, 8, 1))
sketch9.addConstraint(Sketcher.Constraint("Coincident", 12, 2, 13, 1))
sketch9.addConstraint(Sketcher.Constraint("Coincident", 13, 2, 14, 1))
sketch9.addConstraint(Sketcher.Constraint("Coincident", 14, 2, 15, 1))
sketch9.addConstraint(Sketcher.Constraint("Coincident", 15, 2, 12, 1))
sketch9.addConstraint(Sketcher.Constraint("Vertical", 0))
sketch9.addConstraint(Sketcher.Constraint("Horizontal", 1))
sketch9.addConstraint(Sketcher.Constraint("Vertical", 2))
sketch9.addConstraint(Sketcher.Constraint("Horizontal", 3))
sketch9.addConstraint(Sketcher.Constraint("Vertical", 4))
sketch9.addConstraint(Sketcher.Constraint("Horizontal", 5))
sketch9.addConstraint(Sketcher.Constraint("Vertical", 6))
sketch9.addConstraint(Sketcher.Constraint("Horizontal", 7))
sketch9.addConstraint(Sketcher.Constraint("Vertical", 8))
sketch9.addConstraint(Sketcher.Constraint("Horizontal", 9))
sketch9.addConstraint(Sketcher.Constraint("Vertical", 10))
sketch9.addConstraint(Sketcher.Constraint("Horizontal", 11))
sketch9.addConstraint(Sketcher.Constraint("Vertical", 12))
sketch9.addConstraint(Sketcher.Constraint("Horizontal", 13))
sketch9.addConstraint(Sketcher.Constraint("Vertical", 14))
sketch9.addConstraint(Sketcher.Constraint("Horizontal", 15))
sketch9.addConstraint(Sketcher.Constraint("Symmetric", 6, 2, 8, 2, -1, 1))
sketch9.addConstraint(Sketcher.Constraint("Symmetric", 4, 2, 10, 2, -1, 1))
sketch9.addConstraint(Sketcher.Constraint("Symmetric", 2, 2, 12, 2, -1, 1))
sketch9.addConstraint(Sketcher.Constraint("Symmetric", 0, 2, 14, 2, -1, 1))
sketch9.addConstraint(Sketcher.Constraint("Symmetric", 1, 2, 4, 2, -2))
sketch9.addConstraint(Sketcher.Constraint("Symmetric", 3, 2, 6, 2, -2))
sketch9.addConstraint(Sketcher.Constraint("DistanceX", 1, 1, 1, 2, Q("12 mm")))
sketch9.addConstraint(Sketcher.Constraint("DistanceY", 0, 2, 0, 1, Q("3 mm")))
sketch9.addConstraint(Sketcher.Constraint("DistanceX", 0, 2, -1, 1, Q("13 mm")))
sketch9.addConstraint(Sketcher.Constraint("DistanceY", 0, 2, -1, 1, Q("16 mm")))
sketch9.setExpression("Constraints[38]", "Params.sketch9_width")
sketch9.setExpression("Constraints[39]", "Params.sketch9_height")
pad6 = doc.addObject("PartDesign::Pad", "Pad005")
body2.addObject(pad6)
pad6.Profile = sketch9
pad6.setExpression("Length", "Params.pad6_length")

doc.recompute()
